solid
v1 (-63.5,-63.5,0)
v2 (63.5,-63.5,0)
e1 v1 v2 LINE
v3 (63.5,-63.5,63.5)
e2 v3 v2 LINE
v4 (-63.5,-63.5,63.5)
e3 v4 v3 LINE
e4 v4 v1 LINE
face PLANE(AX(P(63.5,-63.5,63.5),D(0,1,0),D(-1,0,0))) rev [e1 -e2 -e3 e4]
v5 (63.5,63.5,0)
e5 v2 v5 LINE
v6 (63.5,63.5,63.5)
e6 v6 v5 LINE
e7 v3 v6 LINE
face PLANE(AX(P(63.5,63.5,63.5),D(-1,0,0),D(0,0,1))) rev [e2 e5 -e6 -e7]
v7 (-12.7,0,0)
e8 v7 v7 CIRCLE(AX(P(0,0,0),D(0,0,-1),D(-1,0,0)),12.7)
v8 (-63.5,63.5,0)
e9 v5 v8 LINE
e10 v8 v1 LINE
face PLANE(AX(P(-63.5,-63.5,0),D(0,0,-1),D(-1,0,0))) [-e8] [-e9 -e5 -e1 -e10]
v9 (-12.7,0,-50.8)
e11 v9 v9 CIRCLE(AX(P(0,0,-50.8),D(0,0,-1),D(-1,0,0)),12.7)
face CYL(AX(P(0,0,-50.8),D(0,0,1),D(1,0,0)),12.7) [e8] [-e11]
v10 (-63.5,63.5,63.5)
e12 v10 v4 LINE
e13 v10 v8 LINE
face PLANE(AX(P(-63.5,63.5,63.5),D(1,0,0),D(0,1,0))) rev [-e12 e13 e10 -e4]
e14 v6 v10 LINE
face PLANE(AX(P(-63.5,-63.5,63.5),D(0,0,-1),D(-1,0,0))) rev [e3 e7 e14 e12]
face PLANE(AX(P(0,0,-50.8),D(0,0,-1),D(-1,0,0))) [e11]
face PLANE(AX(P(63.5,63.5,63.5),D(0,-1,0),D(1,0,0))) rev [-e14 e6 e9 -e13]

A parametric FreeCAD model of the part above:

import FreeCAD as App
import Part
import Sketcher
Q = App.Units.Quantity

doc = App.newDocument("Part")
body = doc.addObject("PartDesign::Body", "Body")

sketch1 = body.newObject("Sketcher::SketchObject", "Sketch")
sketch1.AttachmentSupport = (doc.getObject("XY_Plane"), [""])
sketch1.MapMode = "FlatFace"
sketch1.addGeometry([
    Part.LineSegment(App.Vector(-64, 64, 0), App.Vector(-64, -64, 0)),
    Part.LineSegment(App.Vector(-64, -64, 0), App.Vector(64, -64, 0)),
    Part.LineSegment(App.Vector(64, -64, 0), App.Vector(64, 64, 0)),
    Part.LineSegment(App.Vector(64, 64, 0), App.Vector(-64, 64, 0)),
], False)
sketch1.addConstraint([
    Sketcher.Constraint("Coincident", 0, 2, 1, 1),
    Sketcher.Constraint("Coincident", 1, 2, 2, 1),
    Sketcher.Constraint("Coincident", 2, 2, 3, 1),
    Sketcher.Constraint("Coincident", 3, 2, 0, 1),
    Sketcher.Constraint("Vertical", 0),
    Sketcher.Constraint("Horizontal", 1),
    Sketcher.Constraint("Vertical", 2),
    Sketcher.Constraint("Horizontal", 3),
    Sketcher.Constraint("Symmetric", 0, 2, 2, 2, -1, 1),
    Sketcher.Constraint("Equal", 3, 0),
    Sketcher.Constraint("DistanceX", 1, 1, 1, 2, Q("5 in")),
])
pad1 = body.newObject("PartDesign::Pad", "Pad")
pad1.Profile = sketch1
pad1.Length = Q("2.5 in")

sketch2 = body.newObject("Sketcher::SketchObject", "Sketch001")
sketch2.AttachmentSupport = (doc.getObject("XY_Plane"), [""])
sketch2.MapMode = "FlatFace"
sketch2.addGeometry(Part.Circle(App.Vector(0, 0, 0), App.Vector(0, 0, 1), 13), False)
sketch2.addConstraint([
    Sketcher.Constraint("Coincident", 0, 3, -1, 1),
    Sketcher.Constraint("Diameter", 0, Q("1 in")),
])
pad2 = body.newObject("PartDesign::Pad", "Pad001")
pad2.Profile = sketch2
pad2.Length = Q("2 in")
pad2.Reversed = True

doc.recompute()
